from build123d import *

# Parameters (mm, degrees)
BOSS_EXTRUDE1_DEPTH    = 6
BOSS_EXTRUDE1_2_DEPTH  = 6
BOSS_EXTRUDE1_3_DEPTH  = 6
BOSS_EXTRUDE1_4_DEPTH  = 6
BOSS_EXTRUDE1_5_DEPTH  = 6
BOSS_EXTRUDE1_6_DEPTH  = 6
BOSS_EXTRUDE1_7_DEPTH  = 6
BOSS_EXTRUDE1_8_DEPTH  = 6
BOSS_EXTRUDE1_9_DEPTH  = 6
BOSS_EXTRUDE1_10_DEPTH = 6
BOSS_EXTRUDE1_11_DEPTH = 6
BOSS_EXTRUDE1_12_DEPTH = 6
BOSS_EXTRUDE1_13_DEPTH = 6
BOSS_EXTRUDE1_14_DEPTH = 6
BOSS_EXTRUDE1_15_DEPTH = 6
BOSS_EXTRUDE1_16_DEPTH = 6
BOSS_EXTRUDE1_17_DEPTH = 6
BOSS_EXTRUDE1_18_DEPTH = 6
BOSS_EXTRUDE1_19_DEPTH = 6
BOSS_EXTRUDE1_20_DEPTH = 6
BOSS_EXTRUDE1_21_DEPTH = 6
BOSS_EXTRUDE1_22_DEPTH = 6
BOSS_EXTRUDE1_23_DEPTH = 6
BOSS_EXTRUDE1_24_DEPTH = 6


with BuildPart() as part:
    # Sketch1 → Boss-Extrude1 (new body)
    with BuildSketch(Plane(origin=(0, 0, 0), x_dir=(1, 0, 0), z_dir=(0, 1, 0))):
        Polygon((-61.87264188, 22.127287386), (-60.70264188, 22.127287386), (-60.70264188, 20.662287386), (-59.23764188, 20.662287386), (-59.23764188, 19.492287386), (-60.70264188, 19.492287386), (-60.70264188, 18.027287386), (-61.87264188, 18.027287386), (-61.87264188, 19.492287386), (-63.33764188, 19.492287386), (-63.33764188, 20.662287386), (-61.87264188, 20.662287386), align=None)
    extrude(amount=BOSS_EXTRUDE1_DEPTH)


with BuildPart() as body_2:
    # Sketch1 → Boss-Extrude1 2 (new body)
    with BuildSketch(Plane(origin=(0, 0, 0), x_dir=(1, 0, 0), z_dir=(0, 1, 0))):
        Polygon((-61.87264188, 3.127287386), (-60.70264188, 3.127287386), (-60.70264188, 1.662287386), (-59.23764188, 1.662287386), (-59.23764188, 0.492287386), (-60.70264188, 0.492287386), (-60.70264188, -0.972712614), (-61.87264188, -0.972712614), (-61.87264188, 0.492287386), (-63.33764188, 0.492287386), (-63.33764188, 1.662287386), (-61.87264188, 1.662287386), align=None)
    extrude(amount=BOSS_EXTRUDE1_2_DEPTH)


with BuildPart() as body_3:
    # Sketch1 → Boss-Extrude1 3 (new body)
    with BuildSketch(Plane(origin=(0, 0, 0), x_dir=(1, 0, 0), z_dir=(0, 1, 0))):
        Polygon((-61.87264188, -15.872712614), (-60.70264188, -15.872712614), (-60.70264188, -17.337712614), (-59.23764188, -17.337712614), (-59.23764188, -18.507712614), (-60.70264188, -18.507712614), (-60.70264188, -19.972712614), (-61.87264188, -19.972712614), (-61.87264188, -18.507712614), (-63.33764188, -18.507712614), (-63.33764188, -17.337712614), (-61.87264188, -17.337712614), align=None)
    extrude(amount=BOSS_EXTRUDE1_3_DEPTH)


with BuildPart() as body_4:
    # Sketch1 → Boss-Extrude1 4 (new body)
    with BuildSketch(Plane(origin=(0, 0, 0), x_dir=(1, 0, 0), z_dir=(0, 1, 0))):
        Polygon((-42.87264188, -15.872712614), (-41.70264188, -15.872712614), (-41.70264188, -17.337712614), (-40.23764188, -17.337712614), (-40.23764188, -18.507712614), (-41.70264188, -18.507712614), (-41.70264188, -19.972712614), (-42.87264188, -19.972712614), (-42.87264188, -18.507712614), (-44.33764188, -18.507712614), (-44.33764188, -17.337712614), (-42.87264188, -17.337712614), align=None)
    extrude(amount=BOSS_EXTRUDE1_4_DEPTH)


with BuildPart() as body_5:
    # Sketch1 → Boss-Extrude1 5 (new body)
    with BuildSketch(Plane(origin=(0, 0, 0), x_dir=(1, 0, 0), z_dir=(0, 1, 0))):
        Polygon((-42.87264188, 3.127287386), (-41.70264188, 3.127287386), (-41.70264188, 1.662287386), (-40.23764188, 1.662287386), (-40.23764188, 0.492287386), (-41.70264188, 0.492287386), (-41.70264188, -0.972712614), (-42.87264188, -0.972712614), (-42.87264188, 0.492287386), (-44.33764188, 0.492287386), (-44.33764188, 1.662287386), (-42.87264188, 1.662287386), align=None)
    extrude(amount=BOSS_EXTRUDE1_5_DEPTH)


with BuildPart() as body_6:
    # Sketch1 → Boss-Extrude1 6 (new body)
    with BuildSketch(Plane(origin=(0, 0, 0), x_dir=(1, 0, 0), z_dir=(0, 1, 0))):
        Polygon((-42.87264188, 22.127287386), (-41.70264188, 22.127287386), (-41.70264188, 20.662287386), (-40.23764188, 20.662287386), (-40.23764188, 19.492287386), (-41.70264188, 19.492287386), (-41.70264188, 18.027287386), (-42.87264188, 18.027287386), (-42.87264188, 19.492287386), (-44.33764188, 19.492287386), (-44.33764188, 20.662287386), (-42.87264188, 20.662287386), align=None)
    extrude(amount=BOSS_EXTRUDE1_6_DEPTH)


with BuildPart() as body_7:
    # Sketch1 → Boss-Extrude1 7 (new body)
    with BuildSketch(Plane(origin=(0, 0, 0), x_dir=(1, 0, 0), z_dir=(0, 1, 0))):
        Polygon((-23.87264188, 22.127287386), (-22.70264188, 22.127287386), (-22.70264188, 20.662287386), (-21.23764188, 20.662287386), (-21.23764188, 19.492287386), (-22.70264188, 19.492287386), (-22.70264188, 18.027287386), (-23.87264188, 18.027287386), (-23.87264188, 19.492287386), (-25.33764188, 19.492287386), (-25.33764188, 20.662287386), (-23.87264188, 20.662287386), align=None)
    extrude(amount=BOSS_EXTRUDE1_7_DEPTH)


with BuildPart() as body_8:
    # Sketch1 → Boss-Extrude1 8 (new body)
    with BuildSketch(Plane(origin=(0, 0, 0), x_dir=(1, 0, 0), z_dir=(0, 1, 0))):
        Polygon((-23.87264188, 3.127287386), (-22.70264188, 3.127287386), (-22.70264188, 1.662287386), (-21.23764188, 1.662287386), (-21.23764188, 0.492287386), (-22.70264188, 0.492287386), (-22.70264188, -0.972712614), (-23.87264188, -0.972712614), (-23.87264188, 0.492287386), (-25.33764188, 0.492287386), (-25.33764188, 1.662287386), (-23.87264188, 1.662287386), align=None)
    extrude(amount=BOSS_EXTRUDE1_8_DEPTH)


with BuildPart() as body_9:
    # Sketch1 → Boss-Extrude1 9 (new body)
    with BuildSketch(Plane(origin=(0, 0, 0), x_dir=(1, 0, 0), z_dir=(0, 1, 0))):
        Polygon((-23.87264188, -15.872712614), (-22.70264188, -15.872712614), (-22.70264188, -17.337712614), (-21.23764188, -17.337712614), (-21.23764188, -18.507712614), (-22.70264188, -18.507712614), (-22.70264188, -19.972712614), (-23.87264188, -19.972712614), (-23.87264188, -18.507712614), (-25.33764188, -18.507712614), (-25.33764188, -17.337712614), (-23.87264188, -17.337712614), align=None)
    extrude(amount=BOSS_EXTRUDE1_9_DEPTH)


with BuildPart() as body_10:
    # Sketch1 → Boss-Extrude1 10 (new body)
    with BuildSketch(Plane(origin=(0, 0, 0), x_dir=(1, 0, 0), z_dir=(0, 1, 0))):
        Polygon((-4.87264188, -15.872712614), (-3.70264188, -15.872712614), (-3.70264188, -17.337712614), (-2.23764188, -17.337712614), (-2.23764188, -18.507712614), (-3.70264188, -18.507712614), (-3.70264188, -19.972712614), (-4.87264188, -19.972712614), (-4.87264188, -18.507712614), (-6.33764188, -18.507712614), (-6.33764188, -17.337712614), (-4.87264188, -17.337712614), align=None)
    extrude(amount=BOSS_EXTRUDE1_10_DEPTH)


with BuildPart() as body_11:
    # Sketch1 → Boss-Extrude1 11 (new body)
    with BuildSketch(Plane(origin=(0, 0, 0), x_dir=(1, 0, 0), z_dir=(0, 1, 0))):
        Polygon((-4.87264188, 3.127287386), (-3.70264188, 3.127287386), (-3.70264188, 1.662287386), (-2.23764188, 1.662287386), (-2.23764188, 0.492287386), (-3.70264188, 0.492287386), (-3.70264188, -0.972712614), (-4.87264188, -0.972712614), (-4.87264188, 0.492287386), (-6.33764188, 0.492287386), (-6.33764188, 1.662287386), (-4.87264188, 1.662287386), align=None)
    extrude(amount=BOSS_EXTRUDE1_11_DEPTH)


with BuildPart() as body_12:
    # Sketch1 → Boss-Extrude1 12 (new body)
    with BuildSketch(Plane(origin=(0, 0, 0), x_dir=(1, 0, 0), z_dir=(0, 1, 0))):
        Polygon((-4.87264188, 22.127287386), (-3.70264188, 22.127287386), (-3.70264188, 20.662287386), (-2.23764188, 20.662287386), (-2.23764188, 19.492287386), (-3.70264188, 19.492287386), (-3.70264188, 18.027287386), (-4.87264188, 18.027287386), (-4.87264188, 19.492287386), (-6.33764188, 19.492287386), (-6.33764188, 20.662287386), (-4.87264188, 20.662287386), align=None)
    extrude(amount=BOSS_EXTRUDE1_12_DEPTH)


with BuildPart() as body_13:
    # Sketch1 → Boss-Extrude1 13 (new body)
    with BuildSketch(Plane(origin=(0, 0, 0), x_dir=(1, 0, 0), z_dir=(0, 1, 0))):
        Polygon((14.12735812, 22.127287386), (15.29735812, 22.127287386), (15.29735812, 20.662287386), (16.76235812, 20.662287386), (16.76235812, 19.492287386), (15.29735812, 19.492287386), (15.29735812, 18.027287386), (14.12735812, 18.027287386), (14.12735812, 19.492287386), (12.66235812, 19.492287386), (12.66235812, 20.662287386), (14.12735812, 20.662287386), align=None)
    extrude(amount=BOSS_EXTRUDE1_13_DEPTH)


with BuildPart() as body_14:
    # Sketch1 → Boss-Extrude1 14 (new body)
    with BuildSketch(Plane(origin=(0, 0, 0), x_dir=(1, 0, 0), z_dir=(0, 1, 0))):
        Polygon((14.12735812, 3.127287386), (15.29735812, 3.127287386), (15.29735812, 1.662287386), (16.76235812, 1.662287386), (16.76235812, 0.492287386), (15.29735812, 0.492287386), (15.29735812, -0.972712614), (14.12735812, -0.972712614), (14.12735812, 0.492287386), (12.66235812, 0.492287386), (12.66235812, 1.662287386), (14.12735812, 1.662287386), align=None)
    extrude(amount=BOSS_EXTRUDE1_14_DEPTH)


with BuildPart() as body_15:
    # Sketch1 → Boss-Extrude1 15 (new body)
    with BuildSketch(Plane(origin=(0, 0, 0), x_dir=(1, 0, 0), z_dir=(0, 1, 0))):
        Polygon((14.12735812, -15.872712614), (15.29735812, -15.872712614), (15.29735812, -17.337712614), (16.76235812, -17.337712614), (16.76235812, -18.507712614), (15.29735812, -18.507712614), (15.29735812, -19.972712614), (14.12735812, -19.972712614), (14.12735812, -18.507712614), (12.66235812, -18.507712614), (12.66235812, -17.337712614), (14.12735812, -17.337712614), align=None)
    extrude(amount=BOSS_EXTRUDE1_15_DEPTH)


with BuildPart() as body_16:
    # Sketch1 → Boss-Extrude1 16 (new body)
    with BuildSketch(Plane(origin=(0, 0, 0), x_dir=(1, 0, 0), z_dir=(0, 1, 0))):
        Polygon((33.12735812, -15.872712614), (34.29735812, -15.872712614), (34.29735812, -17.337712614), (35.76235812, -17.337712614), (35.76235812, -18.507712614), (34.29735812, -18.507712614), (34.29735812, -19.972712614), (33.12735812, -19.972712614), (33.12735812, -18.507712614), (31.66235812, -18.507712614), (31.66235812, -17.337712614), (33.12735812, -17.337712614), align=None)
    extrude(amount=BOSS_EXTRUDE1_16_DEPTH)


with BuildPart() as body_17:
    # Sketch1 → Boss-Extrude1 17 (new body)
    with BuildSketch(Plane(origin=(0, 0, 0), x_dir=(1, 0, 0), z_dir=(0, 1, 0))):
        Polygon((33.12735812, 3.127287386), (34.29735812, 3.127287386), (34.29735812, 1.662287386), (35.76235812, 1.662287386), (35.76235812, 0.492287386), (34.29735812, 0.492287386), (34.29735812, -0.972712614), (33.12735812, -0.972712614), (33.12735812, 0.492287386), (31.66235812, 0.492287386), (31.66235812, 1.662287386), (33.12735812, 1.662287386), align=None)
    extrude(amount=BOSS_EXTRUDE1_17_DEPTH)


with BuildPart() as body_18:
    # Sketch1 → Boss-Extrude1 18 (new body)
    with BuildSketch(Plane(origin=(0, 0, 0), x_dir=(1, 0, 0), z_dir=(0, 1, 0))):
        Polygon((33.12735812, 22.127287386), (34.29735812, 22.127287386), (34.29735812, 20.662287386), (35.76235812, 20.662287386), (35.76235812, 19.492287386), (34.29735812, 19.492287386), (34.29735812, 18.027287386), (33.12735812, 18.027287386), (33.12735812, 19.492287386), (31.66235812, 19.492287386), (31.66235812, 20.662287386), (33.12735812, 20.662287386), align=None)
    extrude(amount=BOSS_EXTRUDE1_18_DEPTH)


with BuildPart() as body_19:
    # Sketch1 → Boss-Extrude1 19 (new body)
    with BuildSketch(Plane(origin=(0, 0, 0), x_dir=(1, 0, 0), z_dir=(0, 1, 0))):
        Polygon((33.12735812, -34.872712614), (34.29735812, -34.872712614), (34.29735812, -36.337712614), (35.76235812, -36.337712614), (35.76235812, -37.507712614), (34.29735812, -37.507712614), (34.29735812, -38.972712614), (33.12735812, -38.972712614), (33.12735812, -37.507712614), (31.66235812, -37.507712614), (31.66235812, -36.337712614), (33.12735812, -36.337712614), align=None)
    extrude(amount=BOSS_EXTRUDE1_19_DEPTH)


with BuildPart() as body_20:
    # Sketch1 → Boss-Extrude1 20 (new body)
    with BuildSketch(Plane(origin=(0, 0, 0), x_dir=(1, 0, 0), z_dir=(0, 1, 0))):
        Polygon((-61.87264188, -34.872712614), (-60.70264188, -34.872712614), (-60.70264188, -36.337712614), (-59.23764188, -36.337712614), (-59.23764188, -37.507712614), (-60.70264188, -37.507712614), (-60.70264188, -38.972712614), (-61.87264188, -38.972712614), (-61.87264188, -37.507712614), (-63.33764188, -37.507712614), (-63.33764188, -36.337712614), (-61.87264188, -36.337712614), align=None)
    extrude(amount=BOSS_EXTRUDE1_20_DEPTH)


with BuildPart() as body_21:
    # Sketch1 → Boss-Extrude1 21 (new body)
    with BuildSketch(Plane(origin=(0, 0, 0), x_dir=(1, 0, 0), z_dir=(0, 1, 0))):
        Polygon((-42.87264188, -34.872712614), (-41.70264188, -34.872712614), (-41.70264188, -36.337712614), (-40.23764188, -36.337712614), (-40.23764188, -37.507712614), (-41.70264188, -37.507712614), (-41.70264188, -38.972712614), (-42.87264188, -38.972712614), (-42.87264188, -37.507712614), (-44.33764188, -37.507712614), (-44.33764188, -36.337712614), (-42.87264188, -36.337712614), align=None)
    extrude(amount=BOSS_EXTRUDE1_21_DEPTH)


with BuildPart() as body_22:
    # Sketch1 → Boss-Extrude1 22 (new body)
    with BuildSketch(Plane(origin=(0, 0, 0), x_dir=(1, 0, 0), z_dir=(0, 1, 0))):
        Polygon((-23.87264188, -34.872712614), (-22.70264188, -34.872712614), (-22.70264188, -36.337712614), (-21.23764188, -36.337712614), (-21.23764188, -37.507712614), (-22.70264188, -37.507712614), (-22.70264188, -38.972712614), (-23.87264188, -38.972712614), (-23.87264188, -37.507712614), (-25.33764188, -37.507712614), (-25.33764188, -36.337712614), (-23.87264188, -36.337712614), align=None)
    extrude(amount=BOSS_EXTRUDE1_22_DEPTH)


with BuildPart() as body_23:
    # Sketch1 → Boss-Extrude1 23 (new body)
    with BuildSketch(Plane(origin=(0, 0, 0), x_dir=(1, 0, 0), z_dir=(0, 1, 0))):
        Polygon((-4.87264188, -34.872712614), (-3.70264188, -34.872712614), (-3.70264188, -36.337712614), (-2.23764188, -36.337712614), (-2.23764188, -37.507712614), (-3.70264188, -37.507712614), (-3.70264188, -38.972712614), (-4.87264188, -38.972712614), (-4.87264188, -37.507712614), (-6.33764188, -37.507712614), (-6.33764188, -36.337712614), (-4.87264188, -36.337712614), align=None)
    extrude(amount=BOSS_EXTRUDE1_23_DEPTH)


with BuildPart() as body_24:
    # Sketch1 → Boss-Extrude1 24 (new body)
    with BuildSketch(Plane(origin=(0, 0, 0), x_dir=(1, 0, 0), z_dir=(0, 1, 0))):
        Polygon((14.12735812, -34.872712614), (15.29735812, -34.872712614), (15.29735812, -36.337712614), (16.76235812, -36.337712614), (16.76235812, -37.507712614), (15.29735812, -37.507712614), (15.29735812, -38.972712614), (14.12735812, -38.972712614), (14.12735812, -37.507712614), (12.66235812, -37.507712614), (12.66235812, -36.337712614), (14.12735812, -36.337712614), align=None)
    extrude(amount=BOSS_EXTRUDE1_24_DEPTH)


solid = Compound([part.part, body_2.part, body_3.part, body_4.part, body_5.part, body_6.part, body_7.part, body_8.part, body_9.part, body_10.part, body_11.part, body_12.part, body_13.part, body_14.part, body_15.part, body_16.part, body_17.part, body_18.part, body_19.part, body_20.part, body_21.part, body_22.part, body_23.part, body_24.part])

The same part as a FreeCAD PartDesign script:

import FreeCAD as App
import Part
import Sketcher


def add_polygon(sketch, points):
    """Adds a closed chain of lines whose ends are joined by coincident constraints."""
    first, n = sketch.GeometryCount, len(points)
    for a, b in zip(points, points[1:] + points[:1]):
        sketch.addGeometry(Part.LineSegment(App.Vector(*a, 0), App.Vector(*b, 0)), False)
    for i in range(n):
        sketch.addConstraint(Sketcher.Constraint("Coincident", first + i, 2, first + (i + 1) % n, 1))

doc = App.newDocument("Part")
body = doc.addObject("PartDesign::Body", "Body")

# Sketch on XZ plane
sketch1 = body.newObject("Sketcher::SketchObject", "Sketch")
sketch1.AttachmentSupport = (doc.getObject("XZ_Plane"), [""])
sketch1.MapMode = "FlatFace"
add_polygon(sketch1, [(-60.7, -22.1), (-61.9, -22.1), (-61.9, -20.7), (-63.3, -20.7), (-63.3, -19.5), (-61.9, -19.5), (-61.9, -18), (-60.7, -18), (-60.7, -19.5), (-59.2, -19.5), (-59.2, -20.7), (-60.7, -20.7)])  # lines 0-11
sketch1.addConstraint([
    Sketcher.Constraint("Horizontal", 0),
    Sketcher.Constraint("Vertical", 1),
    Sketcher.Constraint("Horizontal", 2),
    Sketcher.Constraint("Vertical", 3),
    Sketcher.Constraint("Horizontal", 4),
    Sketcher.Constraint("Vertical", 5),
    Sketcher.Constraint("Horizontal", 6),
    Sketcher.Constraint("Vertical", 7),
    Sketcher.Constraint("Horizontal", 8),
    Sketcher.Constraint("Vertical", 9),
    Sketcher.Constraint("Horizontal", 10),
    Sketcher.Constraint("Vertical", 11),
    Sketcher.Constraint("Horizontal", 4, 2, 7, 2),
    Sketcher.Constraint("Horizontal", 2, 2, 9, 2),
    Sketcher.Constraint("Vertical", 1, 2, 4, 2),
    Sketcher.Constraint("Vertical", 7, 2, 10, 2),
    Sketcher.Constraint("Equal", 4, 8),
    Sketcher.Constraint("Equal", 10, 1),
    Sketcher.Constraint("Equal", 6, 3),
    Sketcher.Constraint("Equal", 1, 5),
    Sketcher.Constraint("DistanceX", 0, 2, 0, 1, 1.17),
    Sketcher.Constraint("DistanceY", 0, 2, 5, 2, 4.1),
    Sketcher.Constraint("DistanceX", 0, 2, -1, 1, 61.872642),
    Sketcher.Constraint("DistanceY", 0, 2, -1, 1, 22.127287),
])
pad1 = body.newObject("PartDesign::Pad", "Pad")
pad1.Profile = sketch1
pad1.Length = 6
pad1.Reversed = True
body2 = doc.addObject("PartDesign::Body", "Body001")

# Sketch on XZ plane
sketch2 = body2.newObject("Sketcher::SketchObject", "Sketch001")
sketch2.AttachmentSupport = (doc.getObject("XZ_Plane001"), [""])
sketch2.MapMode = "FlatFace"
add_polygon(sketch2, [(-60.7, -3.1), (-61.9, -3.1), (-61.9, -1.7), (-63.3, -1.7), (-63.3, -0.5), (-61.9, -0.5), (-61.9, 1), (-60.7, 1), (-60.7, -0.5), (-59.2, -0.5), (-59.2, -1.7), (-60.7, -1.7)])  # lines 0-11
sketch2.addConstraint([
    Sketcher.Constraint("Horizontal", 0),
    Sketcher.Constraint("Vertical", 1),
    Sketcher.Constraint("Horizontal", 2),
    Sketcher.Constraint("Vertical", 3),
    Sketcher.Constraint("Horizontal", 4),
    Sketcher.Constraint("Vertical", 5),
    Sketcher.Constraint("Horizontal", 6),
    Sketcher.Constraint("Vertical", 7),
    Sketcher.Constraint("Horizontal", 8),
    Sketcher.Constraint("Vertical", 9),
    Sketcher.Constraint("Horizontal", 10),
    Sketcher.Constraint("Vertical", 11),
    Sketcher.Constraint("Horizontal", 4, 2, 7, 2),
    Sketcher.Constraint("Horizontal", 2, 2, 9, 2),
    Sketcher.Constraint("Vertical", 1, 2, 4, 2),
    Sketcher.Constraint("Vertical", 7, 2, 10, 2),
    Sketcher.Constraint("Equal", 4, 8),
    Sketcher.Constraint("Equal", 10, 1),
    Sketcher.Constraint("Equal", 6, 3),
    Sketcher.Constraint("Equal", 1, 5),
    Sketcher.Constraint("DistanceX", 0, 2, 0, 1, 1.17),
    Sketcher.Constraint("DistanceY", 0, 2, 5, 2, 4.1),
    Sketcher.Constraint("DistanceX", 0, 2, -1, 1, 61.872642),
    Sketcher.Constraint("DistanceY", 0, 2, -1, 1, 3.127287),
])
pad2 = body2.newObject("PartDesign::Pad", "Pad001")
pad2.Profile = sketch2
pad2.Length = 6
pad2.Reversed = True
body3 = doc.addObject("PartDesign::Body", "Body002")

# Sketch on XZ plane
sketch3 = body3.newObject("Sketcher::SketchObject", "Sketch002")
sketch3.AttachmentSupport = (doc.getObject("XZ_Plane002"), [""])
sketch3.MapMode = "FlatFace"
add_polygon(sketch3, [(-60.7, 15.9), (-61.9, 15.9), (-61.9, 17.3), (-63.3, 17.3), (-63.3, 18.5), (-61.9, 18.5), (-61.9, 20), (-60.7, 20), (-60.7, 18.5), (-59.2, 18.5), (-59.2, 17.3), (-60.7, 17.3)])  # lines 0-11
sketch3.addConstraint([
    Sketcher.Constraint("Horizontal", 0),
    Sketcher.Constraint("Vertical", 1),
    Sketcher.Constraint("Horizontal", 2),
    Sketcher.Constraint("Vertical", 3),
    Sketcher.Constraint("Horizontal", 4),
    Sketcher.Constraint("Vertical", 5),
    Sketcher.Constraint("Horizontal", 6),
    Sketcher.Constraint("Vertical", 7),
    Sketcher.Constraint("Horizontal", 8),
    Sketcher.Constraint("Vertical", 9),
    Sketcher.Constraint("Horizontal", 10),
    Sketcher.Constraint("Vertical", 11),
    Sketcher.Constraint("Horizontal", 4, 2, 7, 2),
    Sketcher.Constraint("Horizontal", 2, 2, 9, 2),
    Sketcher.Constraint("Vertical", 1, 2, 4, 2),
    Sketcher.Constraint("Vertical", 7, 2, 10, 2),
    Sketcher.Constraint("Equal", 4, 8),
    Sketcher.Constraint("Equal", 10, 1),
    Sketcher.Constraint("Equal", 6, 3),
    Sketcher.Constraint("Equal", 1, 5),
    Sketcher.Constraint("DistanceX", 0, 2, 0, 1, 1.17),
    Sketcher.Constraint("DistanceY", 0, 2, 5, 2, 4.1),
    Sketcher.Constraint("DistanceX", 0, 2, -1, 1, 61.872642),
    Sketcher.Constraint("DistanceY", -1, 1, 0, 2, 15.872713),
])
pad3 = body3.newObject("PartDesign::Pad", "Pad002")
pad3.Profile = sketch3
pad3.Length = 6
pad3.Reversed = True
body4 = doc.addObject("PartDesign::Body", "Body003")

# Sketch on XZ plane
sketch4 = body4.newObject("Sketcher::SketchObject", "Sketch003")
sketch4.AttachmentSupport = (doc.getObject("XZ_Plane003"), [""])
sketch4.MapMode = "FlatFace"
add_polygon(sketch4, [(-41.7, 15.9), (-42.9, 15.9), (-42.9, 17.3), (-44.3, 17.3), (-44.3, 18.5), (-42.9, 18.5), (-42.9, 20), (-41.7, 20), (-41.7, 18.5), (-40.2, 18.5), (-40.2, 17.3), (-41.7, 17.3)])  # lines 0-11
sketch4.addConstraint([
    Sketcher.Constraint("Horizontal", 0),
    Sketcher.Constraint("Vertical", 1),
    Sketcher.Constraint("Horizontal", 2),
    Sketcher.Constraint("Vertical", 3),
    Sketcher.Constraint("Horizontal", 4),
    Sketcher.Constraint("Vertical", 5),
    Sketcher.Constraint("Horizontal", 6),
    Sketcher.Constraint("Vertical", 7),
    Sketcher.Constraint("Horizontal", 8),
    Sketcher.Constraint("Vertical", 9),
    Sketcher.Constraint("Horizontal", 10),
    Sketcher.Constraint("Vertical", 11),
    Sketcher.Constraint("Horizontal", 4, 2, 7, 2),
    Sketcher.Constraint("Horizontal", 2, 2, 9, 2),
    Sketcher.Constraint("Vertical", 1, 2, 4, 2),
    Sketcher.Constraint("Vertical", 7, 2, 10, 2),
    Sketcher.Constraint("Equal", 4, 8),
    Sketcher.Constraint("Equal", 10, 1),
    Sketcher.Constraint("Equal", 6, 3),
    Sketcher.Constraint("Equal", 1, 5),
    Sketcher.Constraint("DistanceX", 0, 2, 0, 1, 1.17),
    Sketcher.Constraint("DistanceY", 0, 2, 5, 2, 4.1),
    Sketcher.Constraint("DistanceX", 0, 2, -1, 1, 42.872642),
    Sketcher.Constraint("DistanceY", -1, 1, 0, 2, 15.872713),
])
pad4 = body4.newObject("PartDesign::Pad", "Pad003")
pad4.Profile = sketch4
pad4.Length = 6
pad4.Reversed = True
body5 = doc.addObject("PartDesign::Body", "Body004")

# Sketch on XZ plane
sketch5 = body5.newObject("Sketcher::SketchObject", "Sketch004")
sketch5.AttachmentSupport = (doc.getObject("XZ_Plane004"), [""])
sketch5.MapMode = "FlatFace"
add_polygon(sketch5, [(-41.7, -3.1), (-42.9, -3.1), (-42.9, -1.7), (-44.3, -1.7), (-44.3, -0.5), (-42.9, -0.5), (-42.9, 1), (-41.7, 1), (-41.7, -0.5), (-40.2, -0.5), (-40.2, -1.7), (-41.7, -1.7)])  # lines 0-11
sketch5.addConstraint([
    Sketcher.Constraint("Horizontal", 0),
    Sketcher.Constraint("Vertical", 1),
    Sketcher.Constraint("Horizontal", 2),
    Sketcher.Constraint("Vertical", 3),
    Sketcher.Constraint("Horizontal", 4),
    Sketcher.Constraint("Vertical", 5),
    Sketcher.Constraint("Horizontal", 6),
    Sketcher.Constraint("Vertical", 7),
    Sketcher.Constraint("Horizontal", 8),
    Sketcher.Constraint("Vertical", 9),
    Sketcher.Constraint("Horizontal", 10),
    Sketcher.Constraint("Vertical", 11),
    Sketcher.Constraint("Horizontal", 4, 2, 7, 2),
    Sketcher.Constraint("Horizontal", 2, 2, 9, 2),
    Sketcher.Constraint("Vertical", 1, 2, 4, 2),
    Sketcher.Constraint("Vertical", 7, 2, 10, 2),
    Sketcher.Constraint("Equal", 4, 8),
    Sketcher.Constraint("Equal", 10, 1),
    Sketcher.Constraint("Equal", 6, 3),
    Sketcher.Constraint("Equal", 1, 5),
    Sketcher.Constraint("DistanceX", 0, 2, 0, 1, 1.17),
    Sketcher.Constraint("DistanceY", 0, 2, 5, 2, 4.1),
    Sketcher.Constraint("DistanceX", 0, 2, -1, 1, 42.872642),
    Sketcher.Constraint("DistanceY", 0, 2, -1, 1, 3.127287),
])
pad5 = body5.newObject("PartDesign::Pad", "Pad004")
pad5.Profile = sketch5
pad5.Length = 6
pad5.Reversed = True
body6 = doc.addObject("PartDesign::Body", "Body005")

# Sketch on XZ plane
sketch6 = body6.newObject("Sketcher::SketchObject", "Sketch005")
sketch6.AttachmentSupport = (doc.getObject("XZ_Plane005"), [""])
sketch6.MapMode = "FlatFace"
add_polygon(sketch6, [(-41.7, -22.1), (-42.9, -22.1), (-42.9, -20.7), (-44.3, -20.7), (-44.3, -19.5), (-42.9, -19.5), (-42.9, -18), (-41.7, -18), (-41.7, -19.5), (-40.2, -19.5), (-40.2, -20.7), (-41.7, -20.7)])  # lines 0-11
sketch6.addConstraint([
    Sketcher.Constraint("Horizontal", 0),
    Sketcher.Constraint("Vertical", 1),
    Sketcher.Constraint("Horizontal", 2),
    Sketcher.Constraint("Vertical", 3),
    Sketcher.Constraint("Horizontal", 4),
    Sketcher.Constraint("Vertical", 5),
    Sketcher.Constraint("Horizontal", 6),
    Sketcher.Constraint("Vertical", 7),
    Sketcher.Constraint("Horizontal", 8),
    Sketcher.Constraint("Vertical", 9),
    Sketcher.Constraint("Horizontal", 10),
    Sketcher.Constraint("Vertical", 11),
    Sketcher.Constraint("Horizontal", 4, 2, 7, 2),
    Sketcher.Constraint("Horizontal", 2, 2, 9, 2),
    Sketcher.Constraint("Vertical", 1, 2, 4, 2),
    Sketcher.Constraint("Vertical", 7, 2, 10, 2),
    Sketcher.Constraint("Equal", 4, 8),
    Sketcher.Constraint("Equal", 10, 1),
    Sketcher.Constraint("Equal", 6, 3),
    Sketcher.Constraint("Equal", 1, 5),
    Sketcher.Constraint("DistanceX", 0, 2, 0, 1, 1.17),
    Sketcher.Constraint("DistanceY", 0, 2, 5, 2, 4.1),
    Sketcher.Constraint("DistanceX", 0, 2, -1, 1, 42.872642),
    Sketcher.Constraint("DistanceY", 0, 2, -1, 1, 22.127287),
])
pad6 = body6.newObject("PartDesign::Pad", "Pad005")
pad6.Profile = sketch6
pad6.Length = 6
pad6.Reversed = True
body7 = doc.addObject("PartDesign::Body", "Body006")

# Sketch on XZ plane
sketch7 = body7.newObject("Sketcher::SketchObject", "Sketch006")
sketch7.AttachmentSupport = (doc.getObject("XZ_Plane006"), [""])
sketch7.MapMode = "FlatFace"
add_polygon(sketch7, [(-22.7, -22.1), (-23.9, -22.1), (-23.9, -20.7), (-25.3, -20.7), (-25.3, -19.5), (-23.9, -19.5), (-23.9, -18), (-22.7, -18), (-22.7, -19.5), (-21.2, -19.5), (-21.2, -20.7), (-22.7, -20.7)])  # lines 0-11
sketch7.addConstraint([
    Sketcher.Constraint("Horizontal", 0),
    Sketcher.Constraint("Vertical", 1),
    Sketcher.Constraint("Horizontal", 2),
    Sketcher.Constraint("Vertical", 3),
    Sketcher.Constraint("Horizontal", 4),
    Sketcher.Constraint("Vertical", 5),
    Sketcher.Constraint("Horizontal", 6),
    Sketcher.Constraint("Vertical", 7),
    Sketcher.Constraint("Horizontal", 8),
    Sketcher.Constraint("Vertical", 9),
    Sketcher.Constraint("Horizontal", 10),
    Sketcher.Constraint("Vertical", 11),
    Sketcher.Constraint("Horizontal", 4, 2, 7, 2),
    Sketcher.Constraint("Horizontal", 2, 2, 9, 2),
    Sketcher.Constraint("Vertical", 1, 2, 4, 2),
    Sketcher.Constraint("Vertical", 7, 2, 10, 2),
    Sketcher.Constraint("Equal", 4, 8),
    Sketcher.Constraint("Equal", 10, 1),
    Sketcher.Constraint("Equal", 6, 3),
    Sketcher.Constraint("Equal", 1, 5),
    Sketcher.Constraint("DistanceX", 0, 2, 0, 1, 1.17),
    Sketcher.Constraint("DistanceY", 0, 2, 5, 2, 4.1),
    Sketcher.Constraint("DistanceX", 0, 2, -1, 1, 23.872642),
    Sketcher.Constraint("DistanceY", 0, 2, -1, 1, 22.127287),
])
pad7 = body7.newObject("PartDesign::Pad", "Pad006")
pad7.Profile = sketch7
pad7.Length = 6
pad7.Reversed = True
body8 = doc.addObject("PartDesign::Body", "Body007")

# Sketch on XZ plane
sketch8 = body8.newObject("Sketcher::SketchObject", "Sketch007")
sketch8.AttachmentSupport = (doc.getObject("XZ_Plane007"), [""])
sketch8.MapMode = "FlatFace"
add_polygon(sketch8, [(-22.7, -3.1), (-23.9, -3.1), (-23.9, -1.7), (-25.3, -1.7), (-25.3, -0.5), (-23.9, -0.5), (-23.9, 1), (-22.7, 1), (-22.7, -0.5), (-21.2, -0.5), (-21.2, -1.7), (-22.7, -1.7)])  # lines 0-11
sketch8.addConstraint([
    Sketcher.Constraint("Horizontal", 0),
    Sketcher.Constraint("Vertical", 1),
    Sketcher.Constraint("Horizontal", 2),
    Sketcher.Constraint("Vertical", 3),
    Sketcher.Constraint("Horizontal", 4),
    Sketcher.Constraint("Vertical", 5),
    Sketcher.Constraint("Horizontal", 6),
    Sketcher.Constraint("Vertical", 7),
    Sketcher.Constraint("Horizontal", 8),
    Sketcher.Constraint("Vertical", 9),
    Sketcher.Constraint("Horizontal", 10),
    Sketcher.Constraint("Vertical", 11),
    Sketcher.Constraint("Horizontal", 4, 2, 7, 2),
    Sketcher.Constraint("Horizontal", 2, 2, 9, 2),
    Sketcher.Constraint("Vertical", 1, 2, 4, 2),
    Sketcher.Constraint("Vertical", 7, 2, 10, 2),
    Sketcher.Constraint("Equal", 4, 8),
    Sketcher.Constraint("Equal", 10, 1),
    Sketcher.Constraint("Equal", 6, 3),
    Sketcher.Constraint("Equal", 1, 5),
    Sketcher.Constraint("DistanceX", 0, 2, 0, 1, 1.17),
    Sketcher.Constraint("DistanceY", 0, 2, 5, 2, 4.1),
    Sketcher.Constraint("DistanceX", 0, 2, -1, 1, 23.872642),
    Sketcher.Constraint("DistanceY", 0, 2, -1, 1, 3.127287),
])
pad8 = body8.newObject("PartDesign::Pad", "Pad007")
pad8.Profile = sketch8
pad8.Length = 6
pad8.Reversed = True
body9 = doc.addObject("PartDesign::Body", "Body008")

# Sketch on XZ plane
sketch9 = body9.newObject("Sketcher::SketchObject", "Sketch008")
sketch9.AttachmentSupport = (doc.getObject("XZ_Plane008"), [""])
sketch9.MapMode = "FlatFace"
add_polygon(sketch9, [(-22.7, 15.9), (-23.9, 15.9), (-23.9, 17.3), (-25.3, 17.3), (-25.3, 18.5), (-23.9, 18.5), (-23.9, 20), (-22.7, 20), (-22.7, 18.5), (-21.2, 18.5), (-21.2, 17.3), (-22.7, 17.3)])  # lines 0-11
sketch9.addConstraint([
    Sketcher.Constraint("Horizontal", 0),
    Sketcher.Constraint("Vertical", 1),
    Sketcher.Constraint("Horizontal", 2),
    Sketcher.Constraint("Vertical", 3),
    Sketcher.Constraint("Horizontal", 4),
    Sketcher.Constraint("Vertical", 5),
    Sketcher.Constraint("Horizontal", 6),
    Sketcher.Constraint("Vertical", 7),
    Sketcher.Constraint("Horizontal", 8),
    Sketcher.Constraint("Vertical", 9),
    Sketcher.Constraint("Horizontal", 10),
    Sketcher.Constraint("Vertical", 11),
    Sketcher.Constraint("Horizontal", 4, 2, 7, 2),
    Sketcher.Constraint("Horizontal", 2, 2, 9, 2),
    Sketcher.Constraint("Vertical", 1, 2, 4, 2),
    Sketcher.Constraint("Vertical", 7, 2, 10, 2),
    Sketcher.Constraint("Equal", 4, 8),
    Sketcher.Constraint("Equal", 10, 1),
    Sketcher.Constraint("Equal", 6, 3),
    Sketcher.Constraint("Equal", 1, 5),
    Sketcher.Constraint("DistanceX", 0, 2, 0, 1, 1.17),
    Sketcher.Constraint("DistanceY", 0, 2, 5, 2, 4.1),
    Sketcher.Constraint("DistanceX", 0, 2, -1, 1, 23.872642),
    Sketcher.Constraint("DistanceY", -1, 1, 0, 2, 15.872713),
])
pad9 = body9.newObject("PartDesign::Pad", "Pad008")
pad9.Profile = sketch9
pad9.Length = 6
pad9.Reversed = True
body10 = doc.addObject("PartDesign::Body", "Body009")

# Sketch on XZ plane
sketch10 = body10.newObject("Sketcher::SketchObject", "Sketch009")
sketch10.AttachmentSupport = (doc.getObject("XZ_Plane009"), [""])
sketch10.MapMode = "FlatFace"
add_polygon(sketch10, [(-3.7, 15.9), (-4.9, 15.9), (-4.9, 17.3), (-6.3, 17.3), (-6.3, 18.5), (-4.9, 18.5), (-4.9, 20), (-3.7, 20), (-3.7, 18.5), (-2.2, 18.5), (-2.2, 17.3), (-3.7, 17.3)])  # lines 0-11
sketch10.addConstraint([
    Sketcher.Constraint("Horizontal", 0),
    Sketcher.Constraint("Vertical", 1),
    Sketcher.Constraint("Horizontal", 2),
    Sketcher.Constraint("Vertical", 3),
    Sketcher.Constraint("Horizontal", 4),
    Sketcher.Constraint("Vertical", 5),
    Sketcher.Constraint("Horizontal", 6),
    Sketcher.Constraint("Vertical", 7),
    Sketcher.Constraint("Horizontal", 8),
    Sketcher.Constraint("Vertical", 9),
    Sketcher.Constraint("Horizontal", 10),
    Sketcher.Constraint("Vertical", 11),
    Sketcher.Constraint("Horizontal", 4, 2, 7, 2),
    Sketcher.Constraint("Horizontal", 2, 2, 9, 2),
    Sketcher.Constraint("Vertical", 1, 2, 4, 2),
    Sketcher.Constraint("Vertical", 7, 2, 10, 2),
    Sketcher.Constraint("Equal", 4, 8),
    Sketcher.Constraint("Equal", 10, 1),
    Sketcher.Constraint("Equal", 6, 3),
    Sketcher.Constraint("Equal", 1, 5),
    Sketcher.Constraint("DistanceX", 0, 2, 0, 1, 1.17),
    Sketcher.Constraint("DistanceY", 0, 2, 5, 2, 4.1),
    Sketcher.Constraint("DistanceX", 0, 2, -1, 1, 4.872642),
    Sketcher.Constraint("DistanceY", -1, 1, 0, 2, 15.872713),
])
pad10 = body10.newObject("PartDesign::Pad", "Pad009")
pad10.Profile = sketch10
pad10.Length = 6
pad10.Reversed = True
body11 = doc.addObject("PartDesign::Body", "Body010")

# Sketch on XZ plane
sketch11 = body11.newObject("Sketcher::SketchObject", "Sketch010")
sketch11.AttachmentSupport = (doc.getObject("XZ_Plane010"), [""])
sketch11.MapMode = "FlatFace"
add_polygon(sketch11, [(-3.7, -3.1), (-4.9, -3.1), (-4.9, -1.7), (-6.3, -1.7), (-6.3, -0.5), (-4.9, -0.5), (-4.9, 1), (-3.7, 1), (-3.7, -0.5), (-2.2, -0.5), (-2.2, -1.7), (-3.7, -1.7)])  # lines 0-11
sketch11.addConstraint([
    Sketcher.Constraint("Horizontal", 0),
    Sketcher.Constraint("Vertical", 1),
    Sketcher.Constraint("Horizontal", 2),
    Sketcher.Constraint("Vertical", 3),
    Sketcher.Constraint("Horizontal", 4),
    Sketcher.Constraint("Vertical", 5),
    Sketcher.Constraint("Horizontal", 6),
    Sketcher.Constraint("Vertical", 7),
    Sketcher.Constraint("Horizontal", 8),
    Sketcher.Constraint("Vertical", 9),
    Sketcher.Constraint("Horizontal", 10),
    Sketcher.Constraint("Vertical", 11),
    Sketcher.Constraint("Horizontal", 4, 2, 7, 2),
    Sketcher.Constraint("Horizontal", 2, 2, 9, 2),
    Sketcher.Constraint("Vertical", 1, 2, 4, 2),
    Sketcher.Constraint("Vertical", 7, 2, 10, 2),
    Sketcher.Constraint("Equal", 4, 8),
    Sketcher.Constraint("Equal", 10, 1),
    Sketcher.Constraint("Equal", 6, 3),
    Sketcher.Constraint("Equal", 1, 5),
    Sketcher.Constraint("DistanceX", 0, 2, 0, 1, 1.17),
    Sketcher.Constraint("DistanceY", 0, 2, 5, 2, 4.1),
    Sketcher.Constraint("DistanceX", 0, 2, -1, 1, 4.872642),
    Sketcher.Constraint("DistanceY", 0, 2, -1, 1, 3.127287),
])
pad11 = body11.newObject("PartDesign::Pad", "Pad010")
pad11.Profile = sketch11
pad11.Length = 6
pad11.Reversed = True
body12 = doc.addObject("PartDesign::Body", "Body011")

# Sketch on XZ plane
sketch12 = body12.newObject("Sketcher::SketchObject", "Sketch011")
sketch12.AttachmentSupport = (doc.getObject("XZ_Plane011"), [""])
sketch12.MapMode = "FlatFace"
add_polygon(sketch12, [(-3.7, -22.1), (-4.9, -22.1), (-4.9, -20.7), (-6.3, -20.7), (-6.3, -19.5), (-4.9, -19.5), (-4.9, -18), (-3.7, -18), (-3.7, -19.5), (-2.2, -19.5), (-2.2, -20.7), (-3.7, -20.7)])  # lines 0-11
sketch12.addConstraint([
    Sketcher.Constraint("Horizontal", 0),
    Sketcher.Constraint("Vertical", 1),
    Sketcher.Constraint("Horizontal", 2),
    Sketcher.Constraint("Vertical", 3),
    Sketcher.Constraint("Horizontal", 4),
    Sketcher.Constraint("Vertical", 5),
    Sketcher.Constraint("Horizontal", 6),
    Sketcher.Constraint("Vertical", 7),
    Sketcher.Constraint("Horizontal", 8),
    Sketcher.Constraint("Vertical", 9),
    Sketcher.Constraint("Horizontal", 10),
    Sketcher.Constraint("Vertical", 11),
    Sketcher.Constraint("Horizontal", 4, 2, 7, 2),
    Sketcher.Constraint("Horizontal", 2, 2, 9, 2),
    Sketcher.Constraint("Vertical", 1, 2, 4, 2),
    Sketcher.Constraint("Vertical", 7, 2, 10, 2),
    Sketcher.Constraint("Equal", 4, 8),
    Sketcher.Constraint("Equal", 10, 1),
    Sketcher.Constraint("Equal", 6, 3),
    Sketcher.Constraint("Equal", 1, 5),
    Sketcher.Constraint("DistanceX", 0, 2, 0, 1, 1.17),
    Sketcher.Constraint("DistanceY", 0, 2, 5, 2, 4.1),
    Sketcher.Constraint("DistanceX", 0, 2, -1, 1, 4.872642),
    Sketcher.Constraint("DistanceY", 0, 2, -1, 1, 22.127287),
])
pad12 = body12.newObject("PartDesign::Pad", "Pad011")
pad12.Profile = sketch12
pad12.Length = 6
pad12.Reversed = True
body13 = doc.addObject("PartDesign::Body", "Body012")

# Sketch on XZ plane
sketch13 = body13.newObject("Sketcher::SketchObject", "Sketch012")
sketch13.AttachmentSupport = (doc.getObject("XZ_Plane012"), [""])
sketch13.MapMode = "FlatFace"
add_polygon(sketch13, [(15.3, -22.1), (14.1, -22.1), (14.1, -20.7), (12.7, -20.7), (12.7, -19.5), (14.1, -19.5), (14.1, -18), (15.3, -18), (15.3, -19.5), (16.8, -19.5), (16.8, -20.7), (15.3, -20.7)])  # lines 0-11
sketch13.addConstraint([
    Sketcher.Constraint("Horizontal", 0),
    Sketcher.Constraint("Vertical", 1),
    Sketcher.Constraint("Horizontal", 2),
    Sketcher.Constraint("Vertical", 3),
    Sketcher.Constraint("Horizontal", 4),
    Sketcher.Constraint("Vertical", 5),
    Sketcher.Constraint("Horizontal", 6),
    Sketcher.Constraint("Vertical", 7),
    Sketcher.Constraint("Horizontal", 8),
    Sketcher.Constraint("Vertical", 9),
    Sketcher.Constraint("Horizontal", 10),
    Sketcher.Constraint("Vertical", 11),
    Sketcher.Constraint("Horizontal", 4, 2, 7, 2),
    Sketcher.Constraint("Horizontal", 2, 2, 9, 2),
    Sketcher.Constraint("Vertical", 1, 2, 4, 2),
    Sketcher.Constraint("Vertical", 7, 2, 10, 2),
    Sketcher.Constraint("Equal", 4, 8),
    Sketcher.Constraint("Equal", 10, 1),
    Sketcher.Constraint("Equal", 6, 3),
    Sketcher.Constraint("Equal", 1, 5),
    Sketcher.Constraint("DistanceX", 0, 2, 0, 1, 1.17),
    Sketcher.Constraint("DistanceY", 0, 2, 5, 2, 4.1),
    Sketcher.Constraint("DistanceX", -1, 1, 0, 2, 14.127358),
    Sketcher.Constraint("DistanceY", 0, 2, -1, 1, 22.127287),
])
pad13 = body13.newObject("PartDesign::Pad", "Pad012")
pad13.Profile = sketch13
pad13.Length = 6
pad13.Reversed = True
body14 = doc.addObject("PartDesign::Body", "Body013")

# Sketch on XZ plane
sketch14 = body14.newObject("Sketcher::SketchObject", "Sketch013")
sketch14.AttachmentSupport = (doc.getObject("XZ_Plane013"), [""])
sketch14.MapMode = "FlatFace"
add_polygon(sketch14, [(15.3, -3.1), (14.1, -3.1), (14.1, -1.7), (12.7, -1.7), (12.7, -0.5), (14.1, -0.5), (14.1, 1), (15.3, 1), (15.3, -0.5), (16.8, -0.5), (16.8, -1.7), (15.3, -1.7)])  # lines 0-11
sketch14.addConstraint([
    Sketcher.Constraint("Horizontal", 0),
    Sketcher.Constraint("Vertical", 1),
    Sketcher.Constraint("Horizontal", 2),
    Sketcher.Constraint("Vertical", 3),
    Sketcher.Constraint("Horizontal", 4),
    Sketcher.Constraint("Vertical", 5),
    Sketcher.Constraint("Horizontal", 6),
    Sketcher.Constraint("Vertical", 7),
    Sketcher.Constraint("Horizontal", 8),
    Sketcher.Constraint("Vertical", 9),
    Sketcher.Constraint("Horizontal", 10),
    Sketcher.Constraint("Vertical", 11),
    Sketcher.Constraint("Horizontal", 4, 2, 7, 2),
    Sketcher.Constraint("Horizontal", 2, 2, 9, 2),
    Sketcher.Constraint("Vertical", 1, 2, 4, 2),
    Sketcher.Constraint("Vertical", 7, 2, 10, 2),
    Sketcher.Constraint("Equal", 4, 8),
    Sketcher.Constraint("Equal", 10, 1),
    Sketcher.Constraint("Equal", 6, 3),
    Sketcher.Constraint("Equal", 1, 5),
    Sketcher.Constraint("DistanceX", 0, 2, 0, 1, 1.17),
    Sketcher.Constraint("DistanceY", 0, 2, 5, 2, 4.1),
    Sketcher.Constraint("DistanceX", -1, 1, 0, 2, 14.127358),
    Sketcher.Constraint("DistanceY", 0, 2, -1, 1, 3.127287),
])
pad14 = body14.newObject("PartDesign::Pad", "Pad013")
pad14.Profile = sketch14
pad14.Length = 6
pad14.Reversed = True
body15 = doc.addObject("PartDesign::Body", "Body014")

# Sketch on XZ plane
sketch15 = body15.newObject("Sketcher::SketchObject", "Sketch014")
sketch15.AttachmentSupport = (doc.getObject("XZ_Plane014"), [""])
sketch15.MapMode = "FlatFace"
add_polygon(sketch15, [(15.3, 15.9), (14.1, 15.9), (14.1, 17.3), (12.7, 17.3), (12.7, 18.5), (14.1, 18.5), (14.1, 20), (15.3, 20), (15.3, 18.5), (16.8, 18.5), (16.8, 17.3), (15.3, 17.3)])  # lines 0-11
sketch15.addConstraint([
    Sketcher.Constraint("Horizontal", 0),
    Sketcher.Constraint("Vertical", 1),
    Sketcher.Constraint("Horizontal", 2),
    Sketcher.Constraint("Vertical", 3),
    Sketcher.Constraint("Horizontal", 4),
    Sketcher.Constraint("Vertical", 5),
    Sketcher.Constraint("Horizontal", 6),
    Sketcher.Constraint("Vertical", 7),
    Sketcher.Constraint("Horizontal", 8),
    Sketcher.Constraint("Vertical", 9),
    Sketcher.Constraint("Horizontal", 10),
    Sketcher.Constraint("Vertical", 11),
    Sketcher.Constraint("Horizontal", 4, 2, 7, 2),
    Sketcher.Constraint("Horizontal", 2, 2, 9, 2),
    Sketcher.Constraint("Vertical", 1, 2, 4, 2),
    Sketcher.Constraint("Vertical", 7, 2, 10, 2),
    Sketcher.Constraint("Equal", 4, 8),
    Sketcher.Constraint("Equal", 10, 1),
    Sketcher.Constraint("Equal", 6, 3),
    Sketcher.Constraint("Equal", 1, 5),
    Sketcher.Constraint("DistanceX", 0, 2, 0, 1, 1.17),
    Sketcher.Constraint("DistanceY", 0, 2, 5, 2, 4.1),
    Sketcher.Constraint("DistanceX", -1, 1, 0, 2, 14.127358),
    Sketcher.Constraint("DistanceY", -1, 1, 0, 2, 15.872713),
])
pad15 = body15.newObject("PartDesign::Pad", "Pad014")
pad15.Profile = sketch15
pad15.Length = 6
pad15.Reversed = True
body16 = doc.addObject("PartDesign::Body", "Body015")

# Sketch on XZ plane
sketch16 = body16.newObject("Sketcher::SketchObject", "Sketch015")
sketch16.AttachmentSupport = (doc.getObject("XZ_Plane015"), [""])
sketch16.MapMode = "FlatFace"
add_polygon(sketch16, [(34.3, 15.9), (33.1, 15.9), (33.1, 17.3), (31.7, 17.3), (31.7, 18.5), (33.1, 18.5), (33.1, 20), (34.3, 20), (34.3, 18.5), (35.8, 18.5), (35.8, 17.3), (34.3, 17.3)])  # lines 0-11
sketch16.addConstraint([
    Sketcher.Constraint("Horizontal", 0),
    Sketcher.Constraint("Vertical", 1),
    Sketcher.Constraint("Horizontal", 2),
    Sketcher.Constraint("Vertical", 3),
    Sketcher.Constraint("Horizontal", 4),
    Sketcher.Constraint("Vertical", 5),
    Sketcher.Constraint("Horizontal", 6),
    Sketcher.Constraint("Vertical", 7),
    Sketcher.Constraint("Horizontal", 8),
    Sketcher.Constraint("Vertical", 9),
    Sketcher.Constraint("Horizontal", 10),
    Sketcher.Constraint("Vertical", 11),
    Sketcher.Constraint("Horizontal", 4, 2, 7, 2),
    Sketcher.Constraint("Horizontal", 2, 2, 9, 2),
    Sketcher.Constraint("Vertical", 1, 2, 4, 2),
    Sketcher.Constraint("Vertical", 7, 2, 10, 2),
    Sketcher.Constraint("Equal", 4, 8),
    Sketcher.Constraint("Equal", 10, 1),
    Sketcher.Constraint("Equal", 6, 3),
    Sketcher.Constraint("Equal", 1, 5),
    Sketcher.Constraint("DistanceX", 0, 2, 0, 1, 1.17),
    Sketcher.Constraint("DistanceY", 0, 2, 5, 2, 4.1),
    Sketcher.Constraint("DistanceX", -1, 1, 0, 2, 33.127358),
    Sketcher.Constraint("DistanceY", -1, 1, 0, 2, 15.872713),
])
pad16 = body16.newObject("PartDesign::Pad", "Pad015")
pad16.Profile = sketch16
pad16.Length = 6
pad16.Reversed = True
body17 = doc.addObject("PartDesign::Body", "Body016")

# Sketch on XZ plane
sketch17 = body17.newObject("Sketcher::SketchObject", "Sketch016")
sketch17.AttachmentSupport = (doc.getObject("XZ_Plane016"), [""])
sketch17.MapMode = "FlatFace"
add_polygon(sketch17, [(34.3, -3.1), (33.1, -3.1), (33.1, -1.7), (31.7, -1.7), (31.7, -0.5), (33.1, -0.5), (33.1, 1), (34.3, 1), (34.3, -0.5), (35.8, -0.5), (35.8, -1.7), (34.3, -1.7)])  # lines 0-11
sketch17.addConstraint([
    Sketcher.Constraint("Horizontal", 0),
    Sketcher.Constraint("Vertical", 1),
    Sketcher.Constraint("Horizontal", 2),
    Sketcher.Constraint("Vertical", 3),
    Sketcher.Constraint("Horizontal", 4),
    Sketcher.Constraint("Vertical", 5),
    Sketcher.Constraint("Horizontal", 6),
    Sketcher.Constraint("Vertical", 7),
    Sketcher.Constraint("Horizontal", 8),
    Sketcher.Constraint("Vertical", 9),
    Sketcher.Constraint("Horizontal", 10),
    Sketcher.Constraint("Vertical", 11),
    Sketcher.Constraint("Horizontal", 4, 2, 7, 2),
    Sketcher.Constraint("Horizontal", 2, 2, 9, 2),
    Sketcher.Constraint("Vertical", 1, 2, 4, 2),
    Sketcher.Constraint("Vertical", 7, 2, 10, 2),
    Sketcher.Constraint("Equal", 4, 8),
    Sketcher.Constraint("Equal", 10, 1),
    Sketcher.Constraint("Equal", 6, 3),
    Sketcher.Constraint("Equal", 1, 5),
    Sketcher.Constraint("DistanceX", 0, 2, 0, 1, 1.17),
    Sketcher.Constraint("DistanceY", 0, 2, 5, 2, 4.1),
    Sketcher.Constraint("DistanceX", -1, 1, 0, 2, 33.127358),
    Sketcher.Constraint("DistanceY", 0, 2, -1, 1, 3.127287),
])
pad17 = body17.newObject("PartDesign::Pad", "Pad016")
pad17.Profile = sketch17
pad17.Length = 6
pad17.Reversed = True
body18 = doc.addObject("PartDesign::Body", "Body017")

# Sketch on XZ plane
sketch18 = body18.newObject("Sketcher::SketchObject", "Sketch017")
sketch18.AttachmentSupport = (doc.getObject("XZ_Plane017"), [""])
sketch18.MapMode = "FlatFace"
add_polygon(sketch18, [(34.3, -22.1), (33.1, -22.1), (33.1, -20.7), (31.7, -20.7), (31.7, -19.5), (33.1, -19.5), (33.1, -18), (34.3, -18), (34.3, -19.5), (35.8, -19.5), (35.8, -20.7), (34.3, -20.7)])  # lines 0-11
sketch18.addConstraint([
    Sketcher.Constraint("Horizontal", 0),
    Sketcher.Constraint("Vertical", 1),
    Sketcher.Constraint("Horizontal", 2),
    Sketcher.Constraint("Vertical", 3),
    Sketcher.Constraint("Horizontal", 4),
    Sketcher.Constraint("Vertical", 5),
    Sketcher.Constraint("Horizontal", 6),
    Sketcher.Constraint("Vertical", 7),
    Sketcher.Constraint("Horizontal", 8),
    Sketcher.Constraint("Vertical", 9),
    Sketcher.Constraint("Horizontal", 10),
    Sketcher.Constraint("Vertical", 11),
    Sketcher.Constraint("Horizontal", 4, 2, 7, 2),
    Sketcher.Constraint("Horizontal", 2, 2, 9, 2),
    Sketcher.Constraint("Vertical", 1, 2, 4, 2),
    Sketcher.Constraint("Vertical", 7, 2, 10, 2),
    Sketcher.Constraint("Equal", 4, 8),
    Sketcher.Constraint("Equal", 10, 1),
    Sketcher.Constraint("Equal", 6, 3),
    Sketcher.Constraint("Equal", 1, 5),
    Sketcher.Constraint("DistanceX", 0, 2, 0, 1, 1.17),
    Sketcher.Constraint("DistanceY", 0, 2, 5, 2, 4.1),
    Sketcher.Constraint("DistanceX", -1, 1, 0, 2, 33.127358),
    Sketcher.Constraint("DistanceY", 0, 2, -1, 1, 22.127287),
])
pad18 = body18.newObject("PartDesign::Pad", "Pad017")
pad18.Profile = sketch18
pad18.Length = 6
pad18.Reversed = True
body19 = doc.addObject("PartDesign::Body", "Body018")

# Sketch on XZ plane
sketch19 = body19.newObject("Sketcher::SketchObject", "Sketch018")
sketch19.AttachmentSupport = (doc.getObject("XZ_Plane018"), [""])
sketch19.MapMode = "FlatFace"
add_polygon(sketch19, [(34.3, 34.9), (33.1, 34.9), (33.1, 36.3), (31.7, 36.3), (31.7, 37.5), (33.1, 37.5), (33.1, 39), (34.3, 39), (34.3, 37.5), (35.8, 37.5), (35.8, 36.3), (34.3, 36.3)])  # lines 0-11
sketch19.addConstraint([
    Sketcher.Constraint("Horizontal", 0),
    Sketcher.Constraint("Vertical", 1),
    Sketcher.Constraint("Horizontal", 2),
    Sketcher.Constraint("Vertical", 3),
    Sketcher.Constraint("Horizontal", 4),
    Sketcher.Constraint("Vertical", 5),
    Sketcher.Constraint("Horizontal", 6),
    Sketcher.Constraint("Vertical", 7),
    Sketcher.Constraint("Horizontal", 8),
    Sketcher.Constraint("Vertical", 9),
    Sketcher.Constraint("Horizontal", 10),
    Sketcher.Constraint("Vertical", 11),
    Sketcher.Constraint("Horizontal", 4, 2, 7, 2),
    Sketcher.Constraint("Horizontal", 2, 2, 9, 2),
    Sketcher.Constraint("Vertical", 1, 2, 4, 2),
    Sketcher.Constraint("Vertical", 7, 2, 10, 2),
    Sketcher.Constraint("Equal", 4, 8),
    Sketcher.Constraint("Equal", 10, 1),
    Sketcher.Constraint("Equal", 6, 3),
    Sketcher.Constraint("Equal", 1, 5),
    Sketcher.Constraint("DistanceX", 0, 2, 0, 1, 1.17),
    Sketcher.Constraint("DistanceY", 0, 2, 5, 2, 4.1),
    Sketcher.Constraint("DistanceX", -1, 1, 0, 2, 33.127358),
    Sketcher.Constraint("DistanceY", -1, 1, 0, 2, 34.872713),
])
pad19 = body19.newObject("PartDesign::Pad", "Pad018")
pad19.Profile = sketch19
pad19.Length = 6
pad19.Reversed = True
body20 = doc.addObject("PartDesign::Body", "Body019")

# Sketch on XZ plane
sketch20 = body20.newObject("Sketcher::SketchObject", "Sketch019")
sketch20.AttachmentSupport = (doc.getObject("XZ_Plane019"), [""])
sketch20.MapMode = "FlatFace"
add_polygon(sketch20, [(-60.7, 34.9), (-61.9, 34.9), (-61.9, 36.3), (-63.3, 36.3), (-63.3, 37.5), (-61.9, 37.5), (-61.9, 39), (-60.7, 39), (-60.7, 37.5), (-59.2, 37.5), (-59.2, 36.3), (-60.7, 36.3)])  # lines 0-11
sketch20.addConstraint([
    Sketcher.Constraint("Horizontal", 0),
    Sketcher.Constraint("Vertical", 1),
    Sketcher.Constraint("Horizontal", 2),
    Sketcher.Constraint("Vertical", 3),
    Sketcher.Constraint("Horizontal", 4),
    Sketcher.Constraint("Vertical", 5),
    Sketcher.Constraint("Horizontal", 6),
    Sketcher.Constraint("Vertical", 7),
    Sketcher.Constraint("Horizontal", 8),
    Sketcher.Constraint("Vertical", 9),
    Sketcher.Constraint("Horizontal", 10),
    Sketcher.Constraint("Vertical", 11),
    Sketcher.Constraint("Horizontal", 4, 2, 7, 2),
    Sketcher.Constraint("Horizontal", 2, 2, 9, 2),
    Sketcher.Constraint("Vertical", 1, 2, 4, 2),
    Sketcher.Constraint("Vertical", 7, 2, 10, 2),
    Sketcher.Constraint("Equal", 4, 8),
    Sketcher.Constraint("Equal", 10, 1),
    Sketcher.Constraint("Equal", 6, 3),
    Sketcher.Constraint("Equal", 1, 5),
    Sketcher.Constraint("DistanceX", 0, 2, 0, 1, 1.17),
    Sketcher.Constraint("DistanceY", 0, 2, 5, 2, 4.1),
    Sketcher.Constraint("DistanceX", 0, 2, -1, 1, 61.872642),
    Sketcher.Constraint("DistanceY", -1, 1, 0, 2, 34.872713),
])
pad20 = body20.newObject("PartDesign::Pad", "Pad019")
pad20.Profile = sketch20
pad20.Length = 6
pad20.Reversed = True
body21 = doc.addObject("PartDesign::Body", "Body020")

# Sketch on XZ plane
sketch21 = body21.newObject("Sketcher::SketchObject", "Sketch020")
sketch21.AttachmentSupport = (doc.getObject("XZ_Plane020"), [""])
sketch21.MapMode = "FlatFace"
add_polygon(sketch21, [(-41.7, 34.9), (-42.9, 34.9), (-42.9, 36.3), (-44.3, 36.3), (-44.3, 37.5), (-42.9, 37.5), (-42.9, 39), (-41.7, 39), (-41.7, 37.5), (-40.2, 37.5), (-40.2, 36.3), (-41.7, 36.3)])  # lines 0-11
sketch21.addConstraint([
    Sketcher.Constraint("Horizontal", 0),
    Sketcher.Constraint("Vertical", 1),
    Sketcher.Constraint("Horizontal", 2),
    Sketcher.Constraint("Vertical", 3),
    Sketcher.Constraint("Horizontal", 4),
    Sketcher.Constraint("Vertical", 5),
    Sketcher.Constraint("Horizontal", 6),
    Sketcher.Constraint("Vertical", 7),
    Sketcher.Constraint("Horizontal", 8),
    Sketcher.Constraint("Vertical", 9),
    Sketcher.Constraint("Horizontal", 10),
    Sketcher.Constraint("Vertical", 11),
    Sketcher.Constraint("Horizontal", 4, 2, 7, 2),
    Sketcher.Constraint("Horizontal", 2, 2, 9, 2),
    Sketcher.Constraint("Vertical", 1, 2, 4, 2),
    Sketcher.Constraint("Vertical", 7, 2, 10, 2),
    Sketcher.Constraint("Equal", 4, 8),
    Sketcher.Constraint("Equal", 10, 1),
    Sketcher.Constraint("Equal", 6, 3),
    Sketcher.Constraint("Equal", 1, 5),
    Sketcher.Constraint("DistanceX", 0, 2, 0, 1, 1.17),
    Sketcher.Constraint("DistanceY", 0, 2, 5, 2, 4.1),
    Sketcher.Constraint("DistanceX", 0, 2, -1, 1, 42.872642),
    Sketcher.Constraint("DistanceY", -1, 1, 0, 2, 34.872713),
])
pad21 = body21.newObject("PartDesign::Pad", "Pad020")
pad21.Profile = sketch21
pad21.Length = 6
pad21.Reversed = True
body22 = doc.addObject("PartDesign::Body", "Body021")

# Sketch on XZ plane
sketch22 = body22.newObject("Sketcher::SketchObject", "Sketch021")
sketch22.AttachmentSupport = (doc.getObject("XZ_Plane021"), [""])
sketch22.MapMode = "FlatFace"
add_polygon(sketch22, [(-22.7, 34.9), (-23.9, 34.9), (-23.9, 36.3), (-25.3, 36.3), (-25.3, 37.5), (-23.9, 37.5), (-23.9, 39), (-22.7, 39), (-22.7, 37.5), (-21.2, 37.5), (-21.2, 36.3), (-22.7, 36.3)])  # lines 0-11
sketch22.addConstraint([
    Sketcher.Constraint("Horizontal", 0),
    Sketcher.Constraint("Vertical", 1),
    Sketcher.Constraint("Horizontal", 2),
    Sketcher.Constraint("Vertical", 3),
    Sketcher.Constraint("Horizontal", 4),
    Sketcher.Constraint("Vertical", 5),
    Sketcher.Constraint("Horizontal", 6),
    Sketcher.Constraint("Vertical", 7),
    Sketcher.Constraint("Horizontal", 8),
    Sketcher.Constraint("Vertical", 9),
    Sketcher.Constraint("Horizontal", 10),
    Sketcher.Constraint("Vertical", 11),
    Sketcher.Constraint("Horizontal", 4, 2, 7, 2),
    Sketcher.Constraint("Horizontal", 2, 2, 9, 2),
    Sketcher.Constraint("Vertical", 1, 2, 4, 2),
    Sketcher.Constraint("Vertical", 7, 2, 10, 2),
    Sketcher.Constraint("Equal", 4, 8),
    Sketcher.Constraint("Equal", 10, 1),
    Sketcher.Constraint("Equal", 6, 3),
    Sketcher.Constraint("Equal", 1, 5),
    Sketcher.Constraint("DistanceX", 0, 2, 0, 1, 1.17),
    Sketcher.Constraint("DistanceY", 0, 2, 5, 2, 4.1),
    Sketcher.Constraint("DistanceX", 0, 2, -1, 1, 23.872642),
    Sketcher.Constraint("DistanceY", -1, 1, 0, 2, 34.872713),
])
pad22 = body22.newObject("PartDesign::Pad", "Pad021")
pad22.Profile = sketch22
pad22.Length = 6
pad22.Reversed = True
body23 = doc.addObject("PartDesign::Body", "Body022")

# Sketch on XZ plane
sketch23 = body23.newObject("Sketcher::SketchObject", "Sketch022")
sketch23.AttachmentSupport = (doc.getObject("XZ_Plane022"), [""])
sketch23.MapMode = "FlatFace"
add_polygon(sketch23, [(-3.7, 34.9), (-4.9, 34.9), (-4.9, 36.3), (-6.3, 36.3), (-6.3, 37.5), (-4.9, 37.5), (-4.9, 39), (-3.7, 39), (-3.7, 37.5), (-2.2, 37.5), (-2.2, 36.3), (-3.7, 36.3)])  # lines 0-11
sketch23.addConstraint([
    Sketcher.Constraint("Horizontal", 0),
    Sketcher.Constraint("Vertical", 1),
    Sketcher.Constraint("Horizontal", 2),
    Sketcher.Constraint("Vertical", 3),
    Sketcher.Constraint("Horizontal", 4),
    Sketcher.Constraint("Vertical", 5),
    Sketcher.Constraint("Horizontal", 6),
    Sketcher.Constraint("Vertical", 7),
    Sketcher.Constraint("Horizontal", 8),
    Sketcher.Constraint("Vertical", 9),
    Sketcher.Constraint("Horizontal", 10),
    Sketcher.Constraint("Vertical", 11),
    Sketcher.Constraint("Horizontal", 4, 2, 7, 2),
    Sketcher.Constraint("Horizontal", 2, 2, 9, 2),
    Sketcher.Constraint("Vertical", 1, 2, 4, 2),
    Sketcher.Constraint("Vertical", 7, 2, 10, 2),
    Sketcher.Constraint("Equal", 4, 8),
    Sketcher.Constraint("Equal", 10, 1),
    Sketcher.Constraint("Equal", 6, 3),
    Sketcher.Constraint("Equal", 1, 5),
    Sketcher.Constraint("DistanceX", 0, 2, 0, 1, 1.17),
    Sketcher.Constraint("DistanceY", 0, 2, 5, 2, 4.1),
    Sketcher.Constraint("DistanceX", 0, 2, -1, 1, 4.872642),
    Sketcher.Constraint("DistanceY", -1, 1, 0, 2, 34.872713),
])
pad23 = body23.newObject("PartDesign::Pad", "Pad022")
pad23.Profile = sketch23
pad23.Length = 6
pad23.Reversed = True
body24 = doc.addObject("PartDesign::Body", "Body023")

# Sketch on XZ plane
sketch24 = body24.newObject("Sketcher::SketchObject", "Sketch023")
sketch24.AttachmentSupport = (doc.getObject("XZ_Plane023"), [""])
sketch24.MapMode = "FlatFace"
add_polygon(sketch24, [(15.3, 34.9), (14.1, 34.9), (14.1, 36.3), (12.7, 36.3), (12.7, 37.5), (14.1, 37.5), (14.1, 39), (15.3, 39), (15.3, 37.5), (16.8, 37.5), (16.8, 36.3), (15.3, 36.3)])  # lines 0-11
sketch24.addConstraint([
    Sketcher.Constraint("Horizontal", 0),
    Sketcher.Constraint("Vertical", 1),
    Sketcher.Constraint("Horizontal", 2),
    Sketcher.Constraint("Vertical", 3),
    Sketcher.Constraint("Horizontal", 4),
    Sketcher.Constraint("Vertical", 5),
    Sketcher.Constraint("Horizontal", 6),
    Sketcher.Constraint("Vertical", 7),
    Sketcher.Constraint("Horizontal", 8),
    Sketcher.Constraint("Vertical", 9),
    Sketcher.Constraint("Horizontal", 10),
    Sketcher.Constraint("Vertical", 11),
    Sketcher.Constraint("Horizontal", 4, 2, 7, 2),
    Sketcher.Constraint("Horizontal", 2, 2, 9, 2),
    Sketcher.Constraint("Vertical", 1, 2, 4, 2),
    Sketcher.Constraint("Vertical", 7, 2, 10, 2),
    Sketcher.Constraint("Equal", 4, 8),
    Sketcher.Constraint("Equal", 10, 1),
    Sketcher.Constraint("Equal", 6, 3),
    Sketcher.Constraint("Equal", 1, 5),
    Sketcher.Constraint("DistanceX", 0, 2, 0, 1, 1.17),
    Sketcher.Constraint("DistanceY", 0, 2, 5, 2, 4.1),
    Sketcher.Constraint("DistanceX", -1, 1, 0, 2, 14.127358),
    Sketcher.Constraint("DistanceY", -1, 1, 0, 2, 34.872713),
])
pad24 = body24.newObject("PartDesign::Pad", "Pad023")
pad24.Profile = sketch24
pad24.Length = 6
pad24.Reversed = True

doc.recompute()
